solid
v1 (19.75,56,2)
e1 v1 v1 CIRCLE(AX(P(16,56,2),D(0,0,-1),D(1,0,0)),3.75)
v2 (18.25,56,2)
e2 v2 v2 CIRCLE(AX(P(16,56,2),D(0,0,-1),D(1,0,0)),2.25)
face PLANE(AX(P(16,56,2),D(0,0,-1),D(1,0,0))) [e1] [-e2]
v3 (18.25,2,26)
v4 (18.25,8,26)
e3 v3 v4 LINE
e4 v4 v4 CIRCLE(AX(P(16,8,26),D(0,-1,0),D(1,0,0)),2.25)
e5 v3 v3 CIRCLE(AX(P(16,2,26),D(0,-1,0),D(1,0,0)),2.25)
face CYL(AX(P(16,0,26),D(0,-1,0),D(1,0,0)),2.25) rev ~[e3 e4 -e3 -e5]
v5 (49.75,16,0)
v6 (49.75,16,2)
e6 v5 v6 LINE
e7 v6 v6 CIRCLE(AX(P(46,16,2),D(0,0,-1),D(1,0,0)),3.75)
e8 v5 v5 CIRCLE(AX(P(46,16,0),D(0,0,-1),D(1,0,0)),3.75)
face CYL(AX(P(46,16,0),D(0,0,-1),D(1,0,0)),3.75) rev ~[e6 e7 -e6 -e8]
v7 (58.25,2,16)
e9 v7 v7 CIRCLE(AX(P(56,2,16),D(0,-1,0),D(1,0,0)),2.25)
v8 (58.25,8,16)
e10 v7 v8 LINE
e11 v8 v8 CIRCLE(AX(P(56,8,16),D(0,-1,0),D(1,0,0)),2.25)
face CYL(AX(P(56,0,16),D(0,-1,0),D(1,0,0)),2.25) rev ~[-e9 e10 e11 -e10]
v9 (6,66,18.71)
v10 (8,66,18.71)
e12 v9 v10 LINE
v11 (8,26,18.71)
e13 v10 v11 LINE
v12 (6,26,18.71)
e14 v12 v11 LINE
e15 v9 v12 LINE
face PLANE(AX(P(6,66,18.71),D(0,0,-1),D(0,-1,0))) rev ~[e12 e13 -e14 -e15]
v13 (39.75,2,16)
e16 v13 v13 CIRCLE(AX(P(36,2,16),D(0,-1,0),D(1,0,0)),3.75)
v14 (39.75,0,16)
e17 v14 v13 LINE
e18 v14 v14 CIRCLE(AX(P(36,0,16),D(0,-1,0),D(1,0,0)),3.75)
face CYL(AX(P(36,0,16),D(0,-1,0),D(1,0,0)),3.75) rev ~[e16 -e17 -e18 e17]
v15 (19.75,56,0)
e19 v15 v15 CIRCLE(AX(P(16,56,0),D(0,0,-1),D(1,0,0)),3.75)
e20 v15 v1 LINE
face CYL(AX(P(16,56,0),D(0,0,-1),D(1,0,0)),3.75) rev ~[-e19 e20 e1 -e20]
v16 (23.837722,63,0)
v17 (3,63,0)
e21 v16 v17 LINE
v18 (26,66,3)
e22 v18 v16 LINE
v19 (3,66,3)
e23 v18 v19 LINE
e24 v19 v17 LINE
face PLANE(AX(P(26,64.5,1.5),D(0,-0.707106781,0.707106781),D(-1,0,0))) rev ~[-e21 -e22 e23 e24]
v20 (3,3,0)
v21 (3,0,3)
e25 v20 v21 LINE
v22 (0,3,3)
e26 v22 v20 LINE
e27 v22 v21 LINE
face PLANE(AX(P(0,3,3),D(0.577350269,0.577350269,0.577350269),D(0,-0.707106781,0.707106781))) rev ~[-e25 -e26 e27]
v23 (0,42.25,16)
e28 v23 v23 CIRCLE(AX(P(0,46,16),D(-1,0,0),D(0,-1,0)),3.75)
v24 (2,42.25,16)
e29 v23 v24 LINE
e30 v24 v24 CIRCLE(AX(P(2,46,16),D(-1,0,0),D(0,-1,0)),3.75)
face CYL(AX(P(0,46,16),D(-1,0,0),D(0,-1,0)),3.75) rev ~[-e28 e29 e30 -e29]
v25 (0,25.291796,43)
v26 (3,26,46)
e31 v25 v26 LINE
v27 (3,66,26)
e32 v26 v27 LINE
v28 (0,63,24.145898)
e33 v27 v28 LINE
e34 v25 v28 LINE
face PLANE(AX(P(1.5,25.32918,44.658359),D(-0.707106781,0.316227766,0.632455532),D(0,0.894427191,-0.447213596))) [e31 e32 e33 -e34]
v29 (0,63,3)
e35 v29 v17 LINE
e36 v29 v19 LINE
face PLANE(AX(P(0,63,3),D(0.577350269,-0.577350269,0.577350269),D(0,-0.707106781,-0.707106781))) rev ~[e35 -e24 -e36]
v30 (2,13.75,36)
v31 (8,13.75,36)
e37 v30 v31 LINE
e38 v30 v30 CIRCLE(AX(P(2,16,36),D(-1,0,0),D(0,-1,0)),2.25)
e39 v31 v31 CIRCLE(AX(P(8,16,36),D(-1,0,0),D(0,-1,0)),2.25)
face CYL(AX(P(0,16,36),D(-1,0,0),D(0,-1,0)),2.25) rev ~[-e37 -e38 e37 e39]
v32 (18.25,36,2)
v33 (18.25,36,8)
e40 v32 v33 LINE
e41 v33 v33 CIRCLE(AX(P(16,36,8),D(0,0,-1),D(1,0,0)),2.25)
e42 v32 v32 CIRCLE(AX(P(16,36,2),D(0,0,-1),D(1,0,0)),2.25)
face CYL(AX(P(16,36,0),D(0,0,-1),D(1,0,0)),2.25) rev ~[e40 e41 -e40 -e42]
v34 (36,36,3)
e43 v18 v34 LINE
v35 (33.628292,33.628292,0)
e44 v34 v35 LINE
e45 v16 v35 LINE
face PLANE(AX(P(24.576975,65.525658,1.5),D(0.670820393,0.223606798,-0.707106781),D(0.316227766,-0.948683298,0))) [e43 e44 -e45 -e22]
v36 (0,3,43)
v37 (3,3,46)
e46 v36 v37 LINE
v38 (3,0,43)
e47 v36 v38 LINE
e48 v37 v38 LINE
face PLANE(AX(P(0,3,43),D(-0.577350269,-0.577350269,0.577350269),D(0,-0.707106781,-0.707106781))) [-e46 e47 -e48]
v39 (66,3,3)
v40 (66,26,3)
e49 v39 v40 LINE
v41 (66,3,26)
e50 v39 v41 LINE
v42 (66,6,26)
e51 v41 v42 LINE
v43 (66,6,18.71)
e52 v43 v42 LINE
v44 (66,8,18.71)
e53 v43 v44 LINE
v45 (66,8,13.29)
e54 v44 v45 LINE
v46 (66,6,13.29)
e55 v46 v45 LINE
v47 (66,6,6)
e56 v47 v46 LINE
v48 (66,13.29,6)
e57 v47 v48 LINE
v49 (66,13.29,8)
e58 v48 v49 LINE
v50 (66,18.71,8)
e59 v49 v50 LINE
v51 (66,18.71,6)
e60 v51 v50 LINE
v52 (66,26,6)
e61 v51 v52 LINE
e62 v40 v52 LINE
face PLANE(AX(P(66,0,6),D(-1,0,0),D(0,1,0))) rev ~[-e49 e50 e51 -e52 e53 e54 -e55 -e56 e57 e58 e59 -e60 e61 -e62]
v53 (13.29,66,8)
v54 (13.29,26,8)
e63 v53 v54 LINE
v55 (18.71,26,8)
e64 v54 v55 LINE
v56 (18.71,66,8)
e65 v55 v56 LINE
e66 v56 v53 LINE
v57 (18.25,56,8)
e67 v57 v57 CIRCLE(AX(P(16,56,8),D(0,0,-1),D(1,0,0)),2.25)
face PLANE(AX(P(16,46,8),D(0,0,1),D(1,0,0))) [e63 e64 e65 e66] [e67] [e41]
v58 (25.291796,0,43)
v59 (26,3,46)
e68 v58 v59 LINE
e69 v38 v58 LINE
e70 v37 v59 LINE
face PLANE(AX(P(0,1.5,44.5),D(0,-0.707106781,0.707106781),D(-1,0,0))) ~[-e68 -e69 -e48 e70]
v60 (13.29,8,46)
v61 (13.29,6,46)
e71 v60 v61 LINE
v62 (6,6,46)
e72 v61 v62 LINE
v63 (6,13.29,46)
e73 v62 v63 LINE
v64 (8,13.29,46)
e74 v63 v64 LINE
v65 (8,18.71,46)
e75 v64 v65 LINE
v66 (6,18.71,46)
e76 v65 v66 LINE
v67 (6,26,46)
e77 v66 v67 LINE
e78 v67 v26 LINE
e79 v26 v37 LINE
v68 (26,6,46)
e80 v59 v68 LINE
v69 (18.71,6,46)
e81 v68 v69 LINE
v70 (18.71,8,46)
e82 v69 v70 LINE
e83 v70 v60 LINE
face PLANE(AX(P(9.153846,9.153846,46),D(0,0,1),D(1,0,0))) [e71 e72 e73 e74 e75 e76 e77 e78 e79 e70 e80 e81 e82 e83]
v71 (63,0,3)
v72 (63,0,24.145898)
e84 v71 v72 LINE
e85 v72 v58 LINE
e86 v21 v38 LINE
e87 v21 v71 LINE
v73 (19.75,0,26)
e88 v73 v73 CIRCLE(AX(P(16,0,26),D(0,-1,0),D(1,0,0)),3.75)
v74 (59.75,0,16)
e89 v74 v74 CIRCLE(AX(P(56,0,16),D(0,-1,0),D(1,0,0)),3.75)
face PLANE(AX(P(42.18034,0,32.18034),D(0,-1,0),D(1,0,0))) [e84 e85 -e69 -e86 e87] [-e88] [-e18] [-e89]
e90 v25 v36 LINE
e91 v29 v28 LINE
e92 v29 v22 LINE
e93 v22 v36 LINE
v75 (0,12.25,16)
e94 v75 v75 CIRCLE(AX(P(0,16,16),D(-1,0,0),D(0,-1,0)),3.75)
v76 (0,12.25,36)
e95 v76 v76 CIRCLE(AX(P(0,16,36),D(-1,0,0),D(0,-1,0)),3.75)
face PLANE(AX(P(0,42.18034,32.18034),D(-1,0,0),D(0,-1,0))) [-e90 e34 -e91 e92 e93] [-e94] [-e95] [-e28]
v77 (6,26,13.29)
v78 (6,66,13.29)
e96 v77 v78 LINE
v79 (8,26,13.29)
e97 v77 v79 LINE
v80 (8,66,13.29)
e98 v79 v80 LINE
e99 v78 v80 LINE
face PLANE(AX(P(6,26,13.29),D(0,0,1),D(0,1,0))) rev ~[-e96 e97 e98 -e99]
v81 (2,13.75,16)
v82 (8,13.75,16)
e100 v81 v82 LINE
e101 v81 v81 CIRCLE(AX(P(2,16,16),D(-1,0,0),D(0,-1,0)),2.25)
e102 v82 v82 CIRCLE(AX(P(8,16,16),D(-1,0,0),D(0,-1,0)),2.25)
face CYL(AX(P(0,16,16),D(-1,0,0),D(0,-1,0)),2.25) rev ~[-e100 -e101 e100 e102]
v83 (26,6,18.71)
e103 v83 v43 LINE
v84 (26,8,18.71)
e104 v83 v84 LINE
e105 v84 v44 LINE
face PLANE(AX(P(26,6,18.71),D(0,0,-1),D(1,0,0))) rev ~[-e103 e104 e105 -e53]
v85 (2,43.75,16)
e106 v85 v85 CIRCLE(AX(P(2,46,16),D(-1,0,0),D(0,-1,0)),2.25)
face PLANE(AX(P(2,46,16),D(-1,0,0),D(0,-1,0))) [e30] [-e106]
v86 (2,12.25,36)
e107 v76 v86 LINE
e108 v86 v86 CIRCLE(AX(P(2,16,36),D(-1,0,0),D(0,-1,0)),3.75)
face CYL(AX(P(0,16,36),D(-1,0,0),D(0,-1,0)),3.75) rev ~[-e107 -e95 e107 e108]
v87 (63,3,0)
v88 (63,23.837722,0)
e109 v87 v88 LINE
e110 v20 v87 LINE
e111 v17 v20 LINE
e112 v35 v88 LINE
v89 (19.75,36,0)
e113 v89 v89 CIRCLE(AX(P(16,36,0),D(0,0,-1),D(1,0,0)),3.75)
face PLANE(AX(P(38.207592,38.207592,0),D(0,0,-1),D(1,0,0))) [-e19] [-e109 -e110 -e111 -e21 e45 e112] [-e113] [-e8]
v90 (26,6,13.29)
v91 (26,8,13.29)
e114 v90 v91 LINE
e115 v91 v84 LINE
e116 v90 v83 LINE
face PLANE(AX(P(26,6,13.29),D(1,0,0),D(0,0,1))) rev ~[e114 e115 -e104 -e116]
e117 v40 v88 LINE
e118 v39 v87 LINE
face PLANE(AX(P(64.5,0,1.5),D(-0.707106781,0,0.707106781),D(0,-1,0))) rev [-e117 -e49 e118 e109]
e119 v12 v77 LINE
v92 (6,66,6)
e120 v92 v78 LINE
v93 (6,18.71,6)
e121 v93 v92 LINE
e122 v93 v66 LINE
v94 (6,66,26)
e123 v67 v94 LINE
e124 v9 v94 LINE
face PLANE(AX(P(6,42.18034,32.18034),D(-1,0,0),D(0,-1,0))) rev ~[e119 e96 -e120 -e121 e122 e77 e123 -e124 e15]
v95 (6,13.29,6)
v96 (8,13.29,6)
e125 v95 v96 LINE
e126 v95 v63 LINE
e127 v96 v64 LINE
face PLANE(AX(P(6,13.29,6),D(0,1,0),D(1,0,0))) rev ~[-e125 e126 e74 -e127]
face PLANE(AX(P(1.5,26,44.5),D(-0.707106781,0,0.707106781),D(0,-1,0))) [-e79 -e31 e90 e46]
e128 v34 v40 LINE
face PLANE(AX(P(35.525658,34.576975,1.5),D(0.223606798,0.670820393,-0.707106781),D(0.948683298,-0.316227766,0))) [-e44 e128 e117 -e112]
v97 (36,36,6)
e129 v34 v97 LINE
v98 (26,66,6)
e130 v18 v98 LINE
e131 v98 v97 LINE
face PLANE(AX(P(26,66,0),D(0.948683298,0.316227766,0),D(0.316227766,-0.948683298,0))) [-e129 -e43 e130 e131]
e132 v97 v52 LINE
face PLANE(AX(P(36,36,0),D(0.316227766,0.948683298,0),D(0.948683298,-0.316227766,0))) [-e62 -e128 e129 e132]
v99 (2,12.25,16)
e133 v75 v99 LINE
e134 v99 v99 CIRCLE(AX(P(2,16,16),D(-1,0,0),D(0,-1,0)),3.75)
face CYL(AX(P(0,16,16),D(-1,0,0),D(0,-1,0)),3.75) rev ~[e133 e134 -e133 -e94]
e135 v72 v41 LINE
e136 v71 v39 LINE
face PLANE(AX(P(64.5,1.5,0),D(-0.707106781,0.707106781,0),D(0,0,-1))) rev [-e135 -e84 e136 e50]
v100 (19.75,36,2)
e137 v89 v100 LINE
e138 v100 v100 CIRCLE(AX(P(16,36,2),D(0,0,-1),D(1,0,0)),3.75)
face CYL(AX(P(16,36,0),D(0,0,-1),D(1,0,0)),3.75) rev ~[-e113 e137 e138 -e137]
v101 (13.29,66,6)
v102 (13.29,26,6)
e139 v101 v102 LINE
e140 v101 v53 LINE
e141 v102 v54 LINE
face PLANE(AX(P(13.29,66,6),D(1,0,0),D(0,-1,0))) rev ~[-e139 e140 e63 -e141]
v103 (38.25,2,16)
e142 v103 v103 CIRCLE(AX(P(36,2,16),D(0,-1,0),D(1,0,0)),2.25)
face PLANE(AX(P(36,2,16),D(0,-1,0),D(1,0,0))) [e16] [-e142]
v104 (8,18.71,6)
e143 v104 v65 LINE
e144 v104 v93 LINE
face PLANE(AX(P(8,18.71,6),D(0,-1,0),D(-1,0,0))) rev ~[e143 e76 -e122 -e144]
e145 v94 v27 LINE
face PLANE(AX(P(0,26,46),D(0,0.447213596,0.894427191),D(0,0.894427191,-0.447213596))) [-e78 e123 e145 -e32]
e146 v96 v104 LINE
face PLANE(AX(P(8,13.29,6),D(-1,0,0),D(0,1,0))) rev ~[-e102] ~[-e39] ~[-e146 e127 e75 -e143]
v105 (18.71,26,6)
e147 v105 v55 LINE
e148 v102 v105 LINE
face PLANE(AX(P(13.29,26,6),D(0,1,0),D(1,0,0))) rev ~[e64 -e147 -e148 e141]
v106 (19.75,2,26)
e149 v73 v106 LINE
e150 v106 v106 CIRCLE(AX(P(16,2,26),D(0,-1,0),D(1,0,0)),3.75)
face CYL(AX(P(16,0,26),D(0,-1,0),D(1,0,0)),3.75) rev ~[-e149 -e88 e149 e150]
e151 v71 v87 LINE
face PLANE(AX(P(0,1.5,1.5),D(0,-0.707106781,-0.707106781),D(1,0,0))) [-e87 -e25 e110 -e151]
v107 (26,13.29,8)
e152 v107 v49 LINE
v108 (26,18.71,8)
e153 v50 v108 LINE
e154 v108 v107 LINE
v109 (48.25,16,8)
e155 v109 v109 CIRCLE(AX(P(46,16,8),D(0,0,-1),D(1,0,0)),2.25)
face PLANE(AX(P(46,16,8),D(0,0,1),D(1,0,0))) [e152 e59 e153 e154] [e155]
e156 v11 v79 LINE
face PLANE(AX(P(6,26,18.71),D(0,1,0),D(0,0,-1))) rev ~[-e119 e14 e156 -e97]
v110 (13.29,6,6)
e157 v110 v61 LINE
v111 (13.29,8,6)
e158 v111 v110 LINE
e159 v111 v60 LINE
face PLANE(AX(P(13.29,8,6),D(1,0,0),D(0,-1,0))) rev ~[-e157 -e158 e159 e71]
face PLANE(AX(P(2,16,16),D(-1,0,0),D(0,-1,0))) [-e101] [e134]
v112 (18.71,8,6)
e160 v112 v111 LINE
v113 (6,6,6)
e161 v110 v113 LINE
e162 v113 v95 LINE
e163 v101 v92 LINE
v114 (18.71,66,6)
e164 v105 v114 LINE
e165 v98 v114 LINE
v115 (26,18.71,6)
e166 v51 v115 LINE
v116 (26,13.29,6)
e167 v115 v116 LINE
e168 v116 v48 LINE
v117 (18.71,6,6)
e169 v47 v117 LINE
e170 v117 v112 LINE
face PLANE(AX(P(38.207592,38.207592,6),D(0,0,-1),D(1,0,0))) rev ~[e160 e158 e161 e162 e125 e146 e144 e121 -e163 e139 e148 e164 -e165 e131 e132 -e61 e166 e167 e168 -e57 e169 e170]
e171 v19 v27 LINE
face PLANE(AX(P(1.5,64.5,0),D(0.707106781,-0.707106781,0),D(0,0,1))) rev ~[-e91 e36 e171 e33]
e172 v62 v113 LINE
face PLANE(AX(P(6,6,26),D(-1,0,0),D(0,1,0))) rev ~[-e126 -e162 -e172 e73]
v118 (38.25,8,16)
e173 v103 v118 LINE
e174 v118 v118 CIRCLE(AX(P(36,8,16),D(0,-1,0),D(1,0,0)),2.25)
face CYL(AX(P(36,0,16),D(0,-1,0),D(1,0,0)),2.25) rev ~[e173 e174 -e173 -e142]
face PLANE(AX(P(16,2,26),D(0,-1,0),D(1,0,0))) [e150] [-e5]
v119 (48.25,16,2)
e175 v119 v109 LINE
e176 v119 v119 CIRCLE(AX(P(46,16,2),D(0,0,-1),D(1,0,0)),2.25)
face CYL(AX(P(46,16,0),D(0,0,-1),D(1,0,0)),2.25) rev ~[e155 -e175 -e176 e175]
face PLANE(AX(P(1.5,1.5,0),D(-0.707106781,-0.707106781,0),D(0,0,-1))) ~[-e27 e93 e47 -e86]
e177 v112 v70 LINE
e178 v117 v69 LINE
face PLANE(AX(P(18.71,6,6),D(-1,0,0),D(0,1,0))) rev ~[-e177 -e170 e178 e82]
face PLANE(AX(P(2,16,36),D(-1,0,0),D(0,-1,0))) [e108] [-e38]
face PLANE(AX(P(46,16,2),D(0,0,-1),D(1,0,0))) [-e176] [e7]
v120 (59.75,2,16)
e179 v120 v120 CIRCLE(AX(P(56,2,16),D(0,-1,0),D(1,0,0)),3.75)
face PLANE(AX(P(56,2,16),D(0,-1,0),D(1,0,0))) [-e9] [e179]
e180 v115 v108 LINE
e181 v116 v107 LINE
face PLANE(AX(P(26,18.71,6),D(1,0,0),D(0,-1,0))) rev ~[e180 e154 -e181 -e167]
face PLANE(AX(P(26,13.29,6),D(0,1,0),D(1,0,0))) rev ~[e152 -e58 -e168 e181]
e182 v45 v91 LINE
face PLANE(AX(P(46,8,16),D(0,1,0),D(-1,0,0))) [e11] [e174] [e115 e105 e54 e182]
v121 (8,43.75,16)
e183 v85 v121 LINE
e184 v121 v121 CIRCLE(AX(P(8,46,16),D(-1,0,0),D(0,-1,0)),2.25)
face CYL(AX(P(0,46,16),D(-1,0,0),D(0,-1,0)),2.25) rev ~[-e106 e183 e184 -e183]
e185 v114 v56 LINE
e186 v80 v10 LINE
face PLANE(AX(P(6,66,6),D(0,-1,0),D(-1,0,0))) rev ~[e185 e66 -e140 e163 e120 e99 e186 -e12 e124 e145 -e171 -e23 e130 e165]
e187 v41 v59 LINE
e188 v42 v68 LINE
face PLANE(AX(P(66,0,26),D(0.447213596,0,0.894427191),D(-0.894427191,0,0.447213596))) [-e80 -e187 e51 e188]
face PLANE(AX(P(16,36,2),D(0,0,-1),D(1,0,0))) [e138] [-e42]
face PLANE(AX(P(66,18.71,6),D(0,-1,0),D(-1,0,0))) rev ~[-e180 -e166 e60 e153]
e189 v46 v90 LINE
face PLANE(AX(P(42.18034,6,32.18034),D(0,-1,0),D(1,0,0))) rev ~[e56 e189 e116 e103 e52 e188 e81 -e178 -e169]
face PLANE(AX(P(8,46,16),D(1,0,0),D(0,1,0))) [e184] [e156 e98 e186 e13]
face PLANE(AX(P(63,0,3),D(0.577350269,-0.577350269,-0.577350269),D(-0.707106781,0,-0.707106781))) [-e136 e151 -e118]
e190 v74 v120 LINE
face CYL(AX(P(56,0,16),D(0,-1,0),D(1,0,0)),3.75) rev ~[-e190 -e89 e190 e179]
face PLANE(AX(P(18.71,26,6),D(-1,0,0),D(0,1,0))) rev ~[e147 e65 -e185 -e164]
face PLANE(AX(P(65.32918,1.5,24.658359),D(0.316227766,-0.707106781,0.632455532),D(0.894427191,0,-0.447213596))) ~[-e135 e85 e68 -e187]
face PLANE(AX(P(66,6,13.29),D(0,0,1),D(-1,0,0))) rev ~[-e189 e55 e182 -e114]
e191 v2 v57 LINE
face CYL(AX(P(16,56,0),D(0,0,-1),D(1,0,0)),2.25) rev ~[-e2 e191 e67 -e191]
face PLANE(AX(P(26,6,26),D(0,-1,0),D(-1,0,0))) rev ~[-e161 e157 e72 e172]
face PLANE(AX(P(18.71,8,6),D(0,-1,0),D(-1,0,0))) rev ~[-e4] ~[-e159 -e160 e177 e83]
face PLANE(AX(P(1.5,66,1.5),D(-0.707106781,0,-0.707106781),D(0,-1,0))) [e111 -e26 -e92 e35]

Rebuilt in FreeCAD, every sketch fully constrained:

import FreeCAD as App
import Part
import Sketcher

V = App.Vector
Q = App.Units.Quantity


def edges_at(feature, points):
    """Names of the edges that pass closest to the given points."""
    edges = feature.Shape.Edges
    near = lambda p: min(range(len(edges)), key=lambda i: edges[i].distToShape(Part.Vertex(*p))[0])
    return sorted({f"Edge{near(p) + 1}" for p in points})

doc = App.newDocument("Part")
body = doc.addObject("PartDesign::Body", "Body")

sketch1 = doc.addObject("Sketcher::SketchObject", "Sketch")
body.addObject(sketch1)
sketch1.AttachmentSupport = (doc.XY_Plane, [""])
sketch1.MapMode = "FlatFace"
sketch1.addGeometry(Part.LineSegment(V(0, 66, 0), V(0, 0, 0)), False)
sketch1.addGeometry(Part.LineSegment(V(0, 0, 0), V(66, 0, 0)), False)
sketch1.addGeometry(Part.LineSegment(V(66, 0, 0), V(66, 26, 0)), False)
sketch1.addGeometry(Part.LineSegment(V(66, 26, 0), V(26, 26, 0)), False)
sketch1.addGeometry(Part.LineSegment(V(26, 26, 0), V(26, 66, 0)), False)
sketch1.addGeometry(Part.LineSegment(V(26, 66, 0), V(0, 66, 0)), False)
sketch1.addConstraint(Sketcher.Constraint("Coincident", 0, 2, 1, 1))
sketch1.addConstraint(Sketcher.Constraint("Coincident", 1, 2, 2, 1))
sketch1.addConstraint(Sketcher.Constraint("Coincident", 2, 2, 3, 1))
sketch1.addConstraint(Sketcher.Constraint("Coincident", 3, 2, 4, 1))
sketch1.addConstraint(Sketcher.Constraint("Coincident", 4, 2, 5, 1))
sketch1.addConstraint(Sketcher.Constraint("Coincident", 5, 2, 0, 1))
sketch1.addConstraint(Sketcher.Constraint("Vertical", 0))
sketch1.addConstraint(Sketcher.Constraint("Horizontal", 1))
sketch1.addConstraint(Sketcher.Constraint("Vertical", 2))
sketch1.addConstraint(Sketcher.Constraint("Horizontal", 3))
sketch1.addConstraint(Sketcher.Constraint("Vertical", 4))
sketch1.addConstraint(Sketcher.Constraint("Horizontal", 5))
sketch1.addConstraint(Sketcher.Constraint("Coincident", 0, 2, -1, 1))
sketch1.addConstraint(Sketcher.Constraint("Equal", 1, 0))
sketch1.addConstraint(Sketcher.Constraint("Equal", 5, 2))
sketch1.addConstraint(Sketcher.Constraint("DistanceX", 1, 1, 1, 2, Q("66 mm")))
sketch1.addConstraint(Sketcher.Constraint("DistanceX", 3, 2, 3, 1, Q("40 mm")))
pad1 = doc.addObject("PartDesign::Pad", "Pad")
body.addObject(pad1)
pad1.Profile = sketch1
pad1.Length = 6

sketch2 = doc.addObject("Sketcher::SketchObject", "Sketch001")
body.addObject(sketch2)
sketch2.AttachmentSupport = (doc.XY_Plane, [""])
sketch2.MapMode = "FlatFace"
sketch2.AttachmentOffset = App.Placement(V(0, 0, 6), App.Rotation())
sketch2.addGeometry(Part.LineSegment(V(6, 66, 0), V(0, 66, 0)), False)
sketch2.addGeometry(Part.LineSegment(V(0, 66, 0), V(0, 0, 0)), False)
sketch2.addGeometry(Part.LineSegment(V(0, 0, 0), V(66, 0, 0)), False)
sketch2.addGeometry(Part.LineSegment(V(66, 0, 0), V(66, 6, 0)), False)
sketch2.addGeometry(Part.LineSegment(V(66, 6, 0), V(6, 6, 0)), False)
sketch2.addGeometry(Part.LineSegment(V(6, 6, 0), V(6, 66, 0)), False)
sketch2.addConstraint(Sketcher.Constraint("Coincident", 0, 2, 1, 1))
sketch2.addConstraint(Sketcher.Constraint("Coincident", 1, 2, 2, 1))
sketch2.addConstraint(Sketcher.Constraint("Coincident", 2, 2, 3, 1))
sketch2.addConstraint(Sketcher.Constraint("Coincident", 3, 2, 4, 1))
sketch2.addConstraint(Sketcher.Constraint("Coincident", 4, 2, 5, 1))
sketch2.addConstraint(Sketcher.Constraint("Coincident", 5, 2, 0, 1))
sketch2.addConstraint(Sketcher.Constraint("Horizontal", 0))
sketch2.addConstraint(Sketcher.Constraint("Vertical", 1))
sketch2.addConstraint(Sketcher.Constraint("Horizontal", 2))
sketch2.addConstraint(Sketcher.Constraint("Vertical", 3))
sketch2.addConstraint(Sketcher.Constraint("Horizontal", 4))
sketch2.addConstraint(Sketcher.Constraint("Vertical", 5))
sketch2.addConstraint(Sketcher.Constraint("Coincident", 1, 2, -1, 1))
sketch2.addConstraint(Sketcher.Constraint("Equal", 2, 1))
sketch2.addConstraint(Sketcher.Constraint("Equal", 0, 3))
sketch2.addConstraint(Sketcher.Constraint("DistanceX", 0, 2, 0, 1, Q("6 mm")))
sketch2.addConstraint(Sketcher.Constraint("DistanceX", 2, 1, 2, 2, Q("66 mm")))
pad2 = doc.addObject("PartDesign::Pad", "Pad001")
body.addObject(pad2)
pad2.Profile = sketch2
pad2.Length = 20

sketch3 = doc.addObject("Sketcher::SketchObject", "Sketch002")
body.addObject(sketch3)
sketch3.AttachmentSupport = (doc.XY_Plane, [""])
sketch3.MapMode = "FlatFace"
sketch3.AttachmentOffset = App.Placement(V(0, 0, 26), App.Rotation())
sketch3.addGeometry(Part.LineSegment(V(6, 6, 0), V(6, 26, 0)), False)
sketch3.addGeometry(Part.LineSegment(V(6, 26, 0), V(0, 26, 0)), False)
sketch3.addGeometry(Part.LineSegment(V(0, 26, 0), V(0, 0, 0)), False)
sketch3.addGeometry(Part.LineSegment(V(0, 0, 0), V(26, 0, 0)), False)
sketch3.addGeometry(Part.LineSegment(V(26, 0, 0), V(26, 6, 0)), False)
sketch3.addGeometry(Part.LineSegment(V(26, 6, 0), V(6, 6, 0)), False)
sketch3.addConstraint(Sketcher.Constraint("Coincident", 0, 2, 1, 1))
sketch3.addConstraint(Sketcher.Constraint("Coincident", 1, 2, 2, 1))
sketch3.addConstraint(Sketcher.Constraint("Coincident", 2, 2, 3, 1))
sketch3.addConstraint(Sketcher.Constraint("Coincident", 3, 2, 4, 1))
sketch3.addConstraint(Sketcher.Constraint("Coincident", 4, 2, 5, 1))
sketch3.addConstraint(Sketcher.Constraint("Coincident", 5, 2, 0, 1))
sketch3.addConstraint(Sketcher.Constraint("Vertical", 0))
sketch3.addConstraint(Sketcher.Constraint("Horizontal", 1))
sketch3.addConstraint(Sketcher.Constraint("Vertical", 2))
sketch3.addConstraint(Sketcher.Constraint("Horizontal", 3))
sketch3.addConstraint(Sketcher.Constraint("Vertical", 4))
sketch3.addConstraint(Sketcher.Constraint("Horizontal", 5))
sketch3.addConstraint(Sketcher.Constraint("Coincident", 2, 2, -1, 1))
sketch3.addConstraint(Sketcher.Constraint("Equal", 5, 0))
sketch3.addConstraint(Sketcher.Constraint("Equal", 3, 2))
sketch3.addConstraint(Sketcher.Constraint("DistanceX", 1, 2, 1, 1, Q("6 mm")))
sketch3.addConstraint(Sketcher.Constraint("DistanceX", 3, 1, 3, 2, Q("26 mm")))
pad3 = doc.addObject("PartDesign::Pad", "Pad002")
body.addObject(pad3)
pad3.Profile = sketch3
pad3.Length = 20

sketch4 = doc.addObject("Sketcher::SketchObject", "Sketch003")
body.addObject(sketch4)
sketch4.AttachmentSupport = (doc.XY_Plane, [""])
sketch4.MapMode = "FlatFace"
sketch4.AttachmentOffset = App.Placement(V(0, 0, 6), App.Rotation())
sketch4.addGeometry(Part.LineSegment(V(13.3, 6, 0), V(18.7, 6, 0)), False)
sketch4.addGeometry(Part.LineSegment(V(18.7, 6, 0), V(18.7, 8, 0)), False)
sketch4.addGeometry(Part.LineSegment(V(18.7, 8, 0), V(13.3, 8, 0)), False)
sketch4.addGeometry(Part.LineSegment(V(13.3, 8, 0), V(13.3, 6, 0)), False)
sketch4.addGeometry(Part.LineSegment(V(6, 18.7, 0), V(6, 13.3, 0)), False)
sketch4.addGeometry(Part.LineSegment(V(6, 13.3, 0), V(8, 13.3, 0)), False)
sketch4.addGeometry(Part.LineSegment(V(8, 13.3, 0), V(8, 18.7, 0)), False)
sketch4.addGeometry(Part.LineSegment(V(8, 18.7, 0), V(6, 18.7, 0)), False)
sketch4.addConstraint(Sketcher.Constraint("Coincident", 0, 2, 1, 1))
sketch4.addConstraint(Sketcher.Constraint("Coincident", 1, 2, 2, 1))
sketch4.addConstraint(Sketcher.Constraint("Coincident", 2, 2, 3, 1))
sketch4.addConstraint(Sketcher.Constraint("Coincident", 3, 2, 0, 1))
sketch4.addConstraint(Sketcher.Constraint("Coincident", 4, 2, 5, 1))
sketch4.addConstraint(Sketcher.Constraint("Coincident", 5, 2, 6, 1))
sketch4.addConstraint(Sketcher.Constraint("Coincident", 6, 2, 7, 1))
sketch4.addConstraint(Sketcher.Constraint("Coincident", 7, 2, 4, 1))
sketch4.addConstraint(Sketcher.Constraint("Horizontal", 0))
sketch4.addConstraint(Sketcher.Constraint("Vertical", 1))
sketch4.addConstraint(Sketcher.Constraint("Horizontal", 2))
sketch4.addConstraint(Sketcher.Constraint("Vertical", 3))
sketch4.addConstraint(Sketcher.Constraint("Vertical", 4))
sketch4.addConstraint(Sketcher.Constraint("Horizontal", 5))
sketch4.addConstraint(Sketcher.Constraint("Vertical", 6))
sketch4.addConstraint(Sketcher.Constraint("Horizontal", 7))
sketch4.addConstraint(Sketcher.Constraint("Equal", 7, 1))
sketch4.addConstraint(Sketcher.Constraint("Equal", 2, 4))
sketch4.addConstraint(Sketcher.Constraint("DistanceX", 5, 1, 5, 2, Q("2 mm")))
sketch4.addConstraint(Sketcher.Constraint("DistanceY", -1, 1, 0, 2, Q("6 mm")))
sketch4.addConstraint(Sketcher.Constraint("DistanceX", -1, 1, 4, 2, Q("6 mm")))
sketch4.addConstraint(Sketcher.Constraint("DistanceX", 0, 1, 0, 2, Q("5.42 mm")))
sketch4.addConstraint(Sketcher.Constraint("DistanceX", -1, 1, 0, 2, Q("18.71 mm")))
sketch4.addConstraint(Sketcher.Constraint("DistanceY", -1, 1, 4, 2, Q("13.29 mm")))
pad4 = doc.addObject("PartDesign::Pad", "Pad003")
body.addObject(pad4)
pad4.Profile = sketch4
pad4.Length = 40

sketch5 = doc.addObject("Sketcher::SketchObject", "Sketch004")
body.addObject(sketch5)
sketch5.AttachmentSupport = (doc.XY_Plane, [""])
sketch5.MapMode = "FlatFace"
sketch5.AttachmentOffset = App.Placement(V(0, 0, 6), App.Rotation())
sketch5.addGeometry(Part.LineSegment(V(66, 13, 0), V(66, 19, 0)), False)
sketch5.addGeometry(Part.LineSegment(V(66, 19, 0), V(26, 19, 0)), False)
sketch5.addGeometry(Part.LineSegment(V(26, 19, 0), V(26, 13, 0)), False)
sketch5.addGeometry(Part.LineSegment(V(26, 13, 0), V(66, 13, 0)), False)
sketch5.addGeometry(Part.LineSegment(V(19, 66, 0), V(13, 66, 0)), False)
sketch5.addGeometry(Part.LineSegment(V(13, 66, 0), V(13, 26, 0)), False)
sketch5.addGeometry(Part.LineSegment(V(13, 26, 0), V(19, 26, 0)), False)
sketch5.addGeometry(Part.LineSegment(V(19, 26, 0), V(19, 66, 0)), False)
sketch5.addConstraint(Sketcher.Constraint("Coincident", 0, 2, 1, 1))
sketch5.addConstraint(Sketcher.Constraint("Coincident", 1, 2, 2, 1))
sketch5.addConstraint(Sketcher.Constraint("Coincident", 2, 2, 3, 1))
sketch5.addConstraint(Sketcher.Constraint("Coincident", 3, 2, 0, 1))
sketch5.addConstraint(Sketcher.Constraint("Coincident", 4, 2, 5, 1))
sketch5.addConstraint(Sketcher.Constraint("Coincident", 5, 2, 6, 1))
sketch5.addConstraint(Sketcher.Constraint("Coincident", 6, 2, 7, 1))
sketch5.addConstraint(Sketcher.Constraint("Coincident", 7, 2, 4, 1))
sketch5.addConstraint(Sketcher.Constraint("Vertical", 0))
sketch5.addConstraint(Sketcher.Constraint("Horizontal", 1))
sketch5.addConstraint(Sketcher.Constraint("Vertical", 2))
sketch5.addConstraint(Sketcher.Constraint("Horizontal", 3))
sketch5.addConstraint(Sketcher.Constraint("Horizontal", 4))
sketch5.addConstraint(Sketcher.Constraint("Vertical", 5))
sketch5.addConstraint(Sketcher.Constraint("Horizontal", 6))
sketch5.addConstraint(Sketcher.Constraint("Vertical", 7))
sketch5.addConstraint(Sketcher.Constraint("Equal", 6, 0))
sketch5.addConstraint(Sketcher.Constraint("Equal", 3, 5))
sketch5.addConstraint(Sketcher.Constraint("DistanceX", 1, 2, 1, 1, Q("40 mm")))
sketch5.addConstraint(Sketcher.Constraint("DistanceX", -1, 1, 0, 2, Q("66 mm")))
sketch5.addConstraint(Sketcher.Constraint("DistanceY", -1, 1, 4, 2, Q("66 mm")))
sketch5.addConstraint(Sketcher.Constraint("DistanceX", 4, 2, 4, 1, Q("5.42 mm")))
sketch5.addConstraint(Sketcher.Constraint("DistanceY", -1, 1, 0, 2, Q("18.71 mm")))
sketch5.addConstraint(Sketcher.Constraint("DistanceX", -1, 1, 4, 2, Q("13.29 mm")))
pad5 = doc.addObject("PartDesign::Pad", "Pad004")
body.addObject(pad5)
pad5.Profile = sketch5
pad5.Length = 2

sketch6 = doc.addObject("Sketcher::SketchObject", "Sketch005")
body.addObject(sketch6)
sketch6.AttachmentSupport = (doc.XZ_Plane, [""])
sketch6.MapMode = "FlatFace"
sketch6.AttachmentOffset = App.Placement(V(0, 0, -6), App.Rotation())
sketch6.addGeometry(Part.LineSegment(V(66, 19, 0), V(66, 13, 0)), False)
sketch6.addGeometry(Part.LineSegment(V(66, 13, 0), V(26, 13, 0)), False)
sketch6.addGeometry(Part.LineSegment(V(26, 13, 0), V(26, 19, 0)), False)
sketch6.addGeometry(Part.LineSegment(V(26, 19, 0), V(66, 19, 0)), False)
sketch6.addConstraint(Sketcher.Constraint("Coincident", 0, 2, 1, 1))
sketch6.addConstraint(Sketcher.Constraint("Coincident", 1, 2, 2, 1))
sketch6.addConstraint(Sketcher.Constraint("Coincident", 2, 2, 3, 1))
sketch6.addConstraint(Sketcher.Constraint("Coincident", 3, 2, 0, 1))
sketch6.addConstraint(Sketcher.Constraint("Vertical", 0))
sketch6.addConstraint(Sketcher.Constraint("Horizontal", 1))
sketch6.addConstraint(Sketcher.Constraint("Vertical", 2))
sketch6.addConstraint(Sketcher.Constraint("Horizontal", 3))
sketch6.addConstraint(Sketcher.Constraint("DistanceX", 1, 2, 1, 1, Q("40 mm")))
sketch6.addConstraint(Sketcher.Constraint("DistanceX", -1, 1, 0, 2, Q("66 mm")))
sketch6.addConstraint(Sketcher.Constraint("DistanceY", 0, 2, 0, 1, Q("5.42 mm")))
sketch6.addConstraint(Sketcher.Constraint("DistanceY", -1, 1, 0, 2, Q("13.29 mm")))
pad6 = doc.addObject("PartDesign::Pad", "Pad005")
body.addObject(pad6)
pad6.Profile = sketch6
pad6.Length = 2
pad6.Reversed = True

sketch7 = doc.addObject("Sketcher::SketchObject", "Sketch006")
body.addObject(sketch7)
sketch7.AttachmentSupport = (doc.YZ_Plane, [""])
sketch7.MapMode = "FlatFace"
sketch7.AttachmentOffset = App.Placement(V(0, 0, 6), App.Rotation())
sketch7.addGeometry(Part.LineSegment(V(66, 13, 0), V(66, 19, 0)), False)
sketch7.addGeometry(Part.LineSegment(V(66, 19, 0), V(26, 19, 0)), False)
sketch7.addGeometry(Part.LineSegment(V(26, 19, 0), V(26, 13, 0)), False)
sketch7.addGeometry(Part.LineSegment(V(26, 13, 0), V(66, 13, 0)), False)
sketch7.addConstraint(Sketcher.Constraint("Coincident", 0, 2, 1, 1))
sketch7.addConstraint(Sketcher.Constraint("Coincident", 1, 2, 2, 1))
sketch7.addConstraint(Sketcher.Constraint("Coincident", 2, 2, 3, 1))
sketch7.addConstraint(Sketcher.Constraint("Coincident", 3, 2, 0, 1))
sketch7.addConstraint(Sketcher.Constraint("Vertical", 0))
sketch7.addConstraint(Sketcher.Constraint("Horizontal", 1))
sketch7.addConstraint(Sketcher.Constraint("Vertical", 2))
sketch7.addConstraint(Sketcher.Constraint("Horizontal", 3))
sketch7.addConstraint(Sketcher.Constraint("DistanceX", 1, 2, 1, 1, Q("40 mm")))
sketch7.addConstraint(Sketcher.Constraint("DistanceX", -1, 1, 0, 2, Q("66 mm")))
sketch7.addConstraint(Sketcher.Constraint("DistanceY", 0, 1, 0, 2, Q("5.42 mm")))
sketch7.addConstraint(Sketcher.Constraint("DistanceY", -1, 1, 0, 2, Q("18.71 mm")))
pad7 = doc.addObject("PartDesign::Pad", "Pad006")
body.addObject(pad7)
pad7.Profile = sketch7
pad7.Length = 2

sketch8 = doc.addObject("Sketcher::SketchObject", "Sketch007")
body.addObject(sketch8)
sketch8.AttachmentSupport = (doc.XZ_Plane, [""])
sketch8.MapMode = "FlatFace"
sketch8.addGeometry(Part.Circle(V(56, 16, 0), V(0, 0, 1), 2.2), False)
sketch8.addGeometry(Part.Circle(V(16, 26, 0), V(0, 0, 1), 2.2), False)
sketch8.addGeometry(Part.Circle(V(36, 16, 0), V(0, 0, 1), 2.2), False)
sketch8.addConstraint(Sketcher.Constraint("Equal", 0, 1))
sketch8.addConstraint(Sketcher.Constraint("Equal", 1, 2))
sketch8.addConstraint(Sketcher.Constraint("Horizontal", 0, 3, 2, 3))
sketch8.addConstraint(Sketcher.Constraint("Diameter", 0, Q("4.5 mm")))
sketch8.addConstraint(Sketcher.Constraint("DistanceX", -1, 1, 0, 3, Q("56 mm")))
sketch8.addConstraint(Sketcher.Constraint("DistanceY", -1, 1, 0, 3, Q("16 mm")))
sketch8.addConstraint(Sketcher.Constraint("DistanceX", -1, 1, 1, 3, Q("16 mm")))
sketch8.addConstraint(Sketcher.Constraint("DistanceY", -1, 1, 1, 3, Q("26 mm")))
sketch8.addConstraint(Sketcher.Constraint("DistanceX", -1, 1, 2, 3, Q("36 mm")))
pocket1 = doc.addObject("PartDesign::Pocket", "Pocket")
body.addObject(pocket1)
pocket1.Profile = sketch8
pocket1.Type = "ThroughAll"

sketch9 = doc.addObject("Sketcher::SketchObject", "Sketch008")
body.addObject(sketch9)
sketch9.AttachmentSupport = (doc.YZ_Plane, [""])
sketch9.MapMode = "FlatFace"
sketch9.addGeometry(Part.Circle(V(16, 36, 0), V(0, 0, 1), 2.2), False)
sketch9.addGeometry(Part.Circle(V(46, 16, 0), V(0, 0, 1), 2.2), False)
sketch9.addGeometry(Part.Circle(V(16, 16, 0), V(0, 0, 1), 2.2), False)
sketch9.addConstraint(Sketcher.Constraint("Equal", 0, 1))
sketch9.addConstraint(Sketcher.Constraint("Equal", 1, 2))
sketch9.addConstraint(Sketcher.Constraint("Horizontal", 1, 3, 2, 3))
sketch9.addConstraint(Sketcher.Constraint("Vertical", 0, 3, 2, 3))
sketch9.addConstraint(Sketcher.Constraint("Diameter", 0, Q("4.5 mm")))
sketch9.addConstraint(Sketcher.Constraint("DistanceX", -1, 1, 0, 3, Q("16 mm")))
sketch9.addConstraint(Sketcher.Constraint("DistanceY", -1, 1, 0, 3, Q("36 mm")))
sketch9.addConstraint(Sketcher.Constraint("DistanceX", -1, 1, 1, 3, Q("46 mm")))
sketch9.addConstraint(Sketcher.Constraint("DistanceY", -1, 1, 1, 3, Q("16 mm")))
pocket2 = doc.addObject("PartDesign::Pocket", "Pocket001")
body.addObject(pocket2)
pocket2.Profile = sketch9
pocket2.Type = "ThroughAll"
pocket2.Reversed = True

sketch10 = doc.addObject("Sketcher::SketchObject", "Sketch009")
body.addObject(sketch10)
sketch10.AttachmentSupport = (doc.XY_Plane, [""])
sketch10.MapMode = "FlatFace"
sketch10.addGeometry(Part.Circle(V(46, 16, 0), V(0, 0, 1), 2.2), False)
sketch10.addGeometry(Part.Circle(V(16, 56, 0), V(0, 0, 1), 2.2), False)
sketch10.addGeometry(Part.Circle(V(16, 36, 0), V(0, 0, 1), 2.2), False)
sketch10.addConstraint(Sketcher.Constraint("Equal", 0, 1))
sketch10.addConstraint(Sketcher.Constraint("Equal", 1, 2))
sketch10.addConstraint(Sketcher.Constraint("Vertical", 1, 3, 2, 3))
sketch10.addConstraint(Sketcher.Constraint("Diameter", 0, Q("4.5 mm")))
sketch10.addConstraint(Sketcher.Constraint("DistanceX", -1, 1, 0, 3, Q("46 mm")))
sketch10.addConstraint(Sketcher.Constraint("DistanceY", -1, 1, 0, 3, Q("16 mm")))
sketch10.addConstraint(Sketcher.Constraint("DistanceX", -1, 1, 1, 3, Q("16 mm")))
sketch10.addConstraint(Sketcher.Constraint("DistanceY", -1, 1, 1, 3, Q("56 mm")))
sketch10.addConstraint(Sketcher.Constraint("DistanceY", -1, 1, 2, 3, Q("36 mm")))
pocket3 = doc.addObject("PartDesign::Pocket", "Pocket002")
body.addObject(pocket3)
pocket3.Profile = sketch10
pocket3.Type = "ThroughAll"
pocket3.Reversed = True

sketch11 = doc.addObject("Sketcher::SketchObject", "Sketch010")
body.addObject(sketch11)
sketch11.AttachmentSupport = (doc.XZ_Plane, [""])
sketch11.MapMode = "FlatFace"
sketch11.addGeometry(Part.Circle(V(16, 26, 0), V(0, 0, 1), 3.8), False)
sketch11.addGeometry(Part.Circle(V(36, 16, 0), V(0, 0, 1), 3.8), False)
sketch11.addGeometry(Part.Circle(V(56, 16, 0), V(0, 0, 1), 3.8), False)
sketch11.addConstraint(Sketcher.Constraint("Equal", 0, 1))
sketch11.addConstraint(Sketcher.Constraint("Equal", 1, 2))
sketch11.addConstraint(Sketcher.Constraint("Horizontal", 1, 3, 2, 3))
sketch11.addConstraint(Sketcher.Constraint("Diameter", 0, Q("7.5 mm")))
sketch11.addConstraint(Sketcher.Constraint("DistanceX", -1, 1, 0, 3, Q("16 mm")))
sketch11.addConstraint(Sketcher.Constraint("DistanceY", -1, 1, 0, 3, Q("26 mm")))
sketch11.addConstraint(Sketcher.Constraint("DistanceX", -1, 1, 1, 3, Q("36 mm")))
sketch11.addConstraint(Sketcher.Constraint("DistanceY", -1, 1, 1, 3, Q("16 mm")))
sketch11.addConstraint(Sketcher.Constraint("DistanceX", -1, 1, 2, 3, Q("56 mm")))
pocket4 = doc.addObject("PartDesign::Pocket", "Pocket003")
body.addObject(pocket4)
pocket4.Profile = sketch11
pocket4.Length = 2

sketch12 = doc.addObject("Sketcher::SketchObject", "Sketch011")
body.addObject(sketch12)
sketch12.AttachmentSupport = (doc.YZ_Plane, [""])
sketch12.MapMode = "FlatFace"
sketch12.addGeometry(Part.Circle(V(16, 36, 0), V(0, 0, 1), 3.8), False)
sketch12.addGeometry(Part.Circle(V(46, 16, 0), V(0, 0, 1), 3.8), False)
sketch12.addGeometry(Part.Circle(V(16, 16, 0), V(0, 0, 1), 3.8), False)
sketch12.addConstraint(Sketcher.Constraint("Equal", 0, 1))
sketch12.addConstraint(Sketcher.Constraint("Equal", 1, 2))
sketch12.addConstraint(Sketcher.Constraint("Horizontal", 1, 3, 2, 3))
sketch12.addConstraint(Sketcher.Constraint("Vertical", 0, 3, 2, 3))
sketch12.addConstraint(Sketcher.Constraint("Diameter", 0, Q("7.5 mm")))
sketch12.addConstraint(Sketcher.Constraint("DistanceX", -1, 1, 0, 3, Q("16 mm")))
sketch12.addConstraint(Sketcher.Constraint("DistanceY", -1, 1, 0, 3, Q("36 mm")))
sketch12.addConstraint(Sketcher.Constraint("DistanceX", -1, 1, 1, 3, Q("46 mm")))
sketch12.addConstraint(Sketcher.Constraint("DistanceY", -1, 1, 1, 3, Q("16 mm")))
pocket5 = doc.addObject("PartDesign::Pocket", "Pocket004")
body.addObject(pocket5)
pocket5.Profile = sketch12
pocket5.Length = 2
pocket5.Reversed = True

sketch13 = doc.addObject("Sketcher::SketchObject", "Sketch012")
body.addObject(sketch13)
sketch13.AttachmentSupport = (doc.XY_Plane, [""])
sketch13.MapMode = "FlatFace"
sketch13.addGeometry(Part.Circle(V(16, 56, 0), V(0, 0, 1), 3.8), False)
sketch13.addGeometry(Part.Circle(V(46, 16, 0), V(0, 0, 1), 3.8), False)
sketch13.addGeometry(Part.Circle(V(16, 36, 0), V(0, 0, 1), 3.8), False)
sketch13.addConstraint(Sketcher.Constraint("Equal", 0, 1))
sketch13.addConstraint(Sketcher.Constraint("Equal", 1, 2))
sketch13.addConstraint(Sketcher.Constraint("Vertical", 0, 3, 2, 3))
sketch13.addConstraint(Sketcher.Constraint("Diameter", 0, Q("7.5 mm")))
sketch13.addConstraint(Sketcher.Constraint("DistanceX", -1, 1, 0, 3, Q("16 mm")))
sketch13.addConstraint(Sketcher.Constraint("DistanceY", -1, 1, 0, 3, Q("56 mm")))
sketch13.addConstraint(Sketcher.Constraint("DistanceX", -1, 1, 1, 3, Q("46 mm")))
sketch13.addConstraint(Sketcher.Constraint("DistanceY", -1, 1, 1, 3, Q("16 mm")))
sketch13.addConstraint(Sketcher.Constraint("DistanceY", -1, 1, 2, 3, Q("36 mm")))
pocket6 = doc.addObject("PartDesign::Pocket", "Pocket005")
body.addObject(pocket6)
pocket6.Profile = sketch13
pocket6.Length = 2
pocket6.Reversed = True

sketch14 = doc.addObject("Sketcher::SketchObject", "Sketch013")
body.addObject(sketch14)
sketch14.AttachmentSupport = (doc.XZ_Plane, [""])
sketch14.MapMode = "FlatFace"
sketch14.addGeometry(Part.LineSegment(V(66, 26, 0), V(26, 46, 0)), False)
sketch14.addGeometry(Part.LineSegment(V(26, 46, 0), V(26, 26, 0)), False)
sketch14.addGeometry(Part.LineSegment(V(26, 26, 0), V(66, 26, 0)), False)
sketch14.addConstraint(Sketcher.Constraint("Coincident", 0, 2, 1, 1))
sketch14.addConstraint(Sketcher.Constraint("Coincident", 1, 2, 2, 1))
sketch14.addConstraint(Sketcher.Constraint("Coincident", 2, 2, 0, 1))
sketch14.addConstraint(Sketcher.Constraint("Vertical", 1))
sketch14.addConstraint(Sketcher.Constraint("Horizontal", 2))
sketch14.addConstraint(Sketcher.Constraint("DistanceX", 2, 1, 2, 2, Q("40 mm")))
sketch14.addConstraint(Sketcher.Constraint("DistanceY", 1, 2, 1, 1, Q("20 mm")))
sketch14.addConstraint(Sketcher.Constraint("DistanceX", -1, 1, 0, 2, Q("26 mm")))
sketch14.addConstraint(Sketcher.Constraint("DistanceY", -1, 1, 0, 2, Q("46 mm")))
pad8 = doc.addObject("PartDesign::Pad", "Pad007")
body.addObject(pad8)
pad8.Profile = sketch14
pad8.Length = 6
pad8.Reversed = True

sketch15 = doc.addObject("Sketcher::SketchObject", "Sketch014")
body.addObject(sketch15)
sketch15.AttachmentSupport = (doc.YZ_Plane, [""])
sketch15.MapMode = "FlatFace"
sketch15.addGeometry(Part.LineSegment(V(26, 46, 0), V(66, 26, 0)), False)
sketch15.addGeometry(Part.LineSegment(V(66, 26, 0), V(26, 26, 0)), False)
sketch15.addGeometry(Part.LineSegment(V(26, 26, 0), V(26, 46, 0)), False)
sketch15.addConstraint(Sketcher.Constraint("Coincident", 0, 2, 1, 1))
sketch15.addConstraint(Sketcher.Constraint("Coincident", 1, 2, 2, 1))
sketch15.addConstraint(Sketcher.Constraint("Coincident", 2, 2, 0, 1))
sketch15.addConstraint(Sketcher.Constraint("Horizontal", 1))
sketch15.addConstraint(Sketcher.Constraint("Vertical", 2))
sketch15.addConstraint(Sketcher.Constraint("DistanceX", 1, 2, 1, 1, Q("40 mm")))
sketch15.addConstraint(Sketcher.Constraint("DistanceY", 2, 1, 2, 2, Q("20 mm")))
sketch15.addConstraint(Sketcher.Constraint("DistanceX", -1, 1, 0, 2, Q("66 mm")))
sketch15.addConstraint(Sketcher.Constraint("DistanceY", -1, 1, 0, 2, Q("26 mm")))
pad9 = doc.addObject("PartDesign::Pad", "Pad008")
body.addObject(pad9)
pad9.Profile = sketch15
pad9.Length = 6

sketch16 = doc.addObject("Sketcher::SketchObject", "Sketch015")
body.addObject(sketch16)
sketch16.AttachmentSupport = (doc.XY_Plane, [""])
sketch16.MapMode = "FlatFace"
sketch16.addGeometry(Part.LineSegment(V(26, 26, 0), V(26, 66, 0)), False)
sketch16.addGeometry(Part.LineSegment(V(26, 66, 0), V(36, 36, 0)), False)
sketch16.addGeometry(Part.LineSegment(V(36, 36, 0), V(66, 26, 0)), False)
sketch16.addGeometry(Part.LineSegment(V(66, 26, 0), V(26, 26, 0)), False)
sketch16.addConstraint(Sketcher.Constraint("Coincident", 0, 2, 1, 1))
sketch16.addConstraint(Sketcher.Constraint("Coincident", 1, 2, 2, 1))
sketch16.addConstraint(Sketcher.Constraint("Coincident", 2, 2, 3, 1))
sketch16.addConstraint(Sketcher.Constraint("Coincident", 3, 2, 0, 1))
sketch16.addConstraint(Sketcher.Constraint("Vertical", 0))
sketch16.addConstraint(Sketcher.Constraint("Horizontal", 3))
sketch16.addConstraint(Sketcher.Constraint("Equal", 3, 0))
sketch16.addConstraint(Sketcher.Constraint("Equal", 1, 2))
sketch16.addConstraint(Sketcher.Constraint("DistanceX", 3, 2, 3, 1, Q("40 mm")))
sketch16.addConstraint(Sketcher.Constraint("DistanceX", -1, 1, 0, 2, Q("26 mm")))
sketch16.addConstraint(Sketcher.Constraint("DistanceY", -1, 1, 0, 2, Q("66 mm")))
sketch16.addConstraint(Sketcher.Constraint("DistanceX", -1, 1, 1, 2, Q("36 mm")))
pad10 = doc.addObject("PartDesign::Pad", "Pad009")
body.addObject(pad10)
pad10.Profile = sketch16
pad10.Length = 6
doc.recompute()

chamfer = doc.addObject("PartDesign::Chamfer", "Chamfer")
body.addObject(chamfer)
chamfer.Base = (pad10, edges_at(pad10, [
    (46, 0, 36),
    (13, 0, 46),
    (0, 13, 46),
    (0, 46, 36),
    (31, 51, 0),
    (51, 31, 0),
    (13, 66, 0),
    (66, 13, 0),
    (66, 0, 13),
    (0, 66, 13),
    (33, 0, 0),
    (0, 33, 0),
    (0, 0, 23),
]))
chamfer.Size = 3

doc.recompute()
